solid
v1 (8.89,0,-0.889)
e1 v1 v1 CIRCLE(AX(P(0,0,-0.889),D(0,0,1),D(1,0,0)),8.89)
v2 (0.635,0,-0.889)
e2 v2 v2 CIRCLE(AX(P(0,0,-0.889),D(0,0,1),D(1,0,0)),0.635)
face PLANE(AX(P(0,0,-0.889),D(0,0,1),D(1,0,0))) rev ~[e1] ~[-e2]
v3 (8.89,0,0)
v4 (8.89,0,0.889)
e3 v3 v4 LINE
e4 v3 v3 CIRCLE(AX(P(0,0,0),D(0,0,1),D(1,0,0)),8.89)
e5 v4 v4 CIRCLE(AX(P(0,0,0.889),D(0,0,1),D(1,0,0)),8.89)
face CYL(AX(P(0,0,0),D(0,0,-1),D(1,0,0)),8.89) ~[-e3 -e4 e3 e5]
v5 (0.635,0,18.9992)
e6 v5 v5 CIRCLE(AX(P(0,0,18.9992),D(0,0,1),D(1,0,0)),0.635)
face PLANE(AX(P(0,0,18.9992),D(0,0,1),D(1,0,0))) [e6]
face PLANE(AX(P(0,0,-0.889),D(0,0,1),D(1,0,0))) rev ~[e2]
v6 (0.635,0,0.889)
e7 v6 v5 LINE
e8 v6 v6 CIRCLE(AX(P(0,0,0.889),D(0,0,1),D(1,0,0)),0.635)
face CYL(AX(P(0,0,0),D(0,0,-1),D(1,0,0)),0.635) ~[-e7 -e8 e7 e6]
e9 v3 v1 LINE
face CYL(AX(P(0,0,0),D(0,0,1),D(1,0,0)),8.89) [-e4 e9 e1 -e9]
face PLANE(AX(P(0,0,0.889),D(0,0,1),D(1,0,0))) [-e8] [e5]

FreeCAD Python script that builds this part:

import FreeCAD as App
import Part
import Sketcher
from FreeCAD import Vector
Q = App.Units.Quantity

doc = App.newDocument("Part")
body = doc.addObject("PartDesign::Body", "Body")

sketch1 = body.newObject("Sketcher::SketchObject", "Sketch")
sketch1.AttachmentSupport = (doc.getObject("XY_Plane"), [""])
sketch1.MapMode = "FlatFace"
sketch1.addGeometry(Part.Circle(Vector(0, 0, 0), Vector(0, 0, 1), 8.89), False)
sketch1.addGeometry(Part.Circle(Vector(0, 0, 0), Vector(0, 0, 1), 0.635), False)
sketch1.addConstraint(Sketcher.Constraint("Coincident", 0, 3, -1, 1))
sketch1.addConstraint(Sketcher.Constraint("Coincident", 1, 3, -1, 1))
sketch1.addConstraint(Sketcher.Constraint("Diameter", 0, Q("0.7 in")))
sketch1.addConstraint(Sketcher.Constraint("Diameter", 1, Q("0.05 in")))
pad1 = body.newObject("PartDesign::Pad", "Pad")
pad1.Profile = sketch1
pad1.Length = Q("0.07 in")
pad1.Midplane = True

sketch2 = body.newObject("Sketcher::SketchObject", "Sketch001")
sketch2.AttachmentSupport = (doc.getObject("XY_Plane"), [""])
sketch2.MapMode = "FlatFace"
sketch2.addGeometry(Part.Circle(Vector(0, 0, 0), Vector(0, 0, 1), 0.635), False)
sketch2.addConstraint(Sketcher.Constraint("Coincident", 0, 3, -1, 1))
sketch2.addConstraint(Sketcher.Constraint("Diameter", 0, Q("0.05 in")))
pad2 = body.newObject("PartDesign::Pad", "Pad001")
pad2.Profile = sketch2
pad2.Length = Q("0.748 in")

sketch3 = body.newObject("Sketcher::SketchObject", "Sketch002")
sketch3.AttachmentSupport = (doc.getObject("XY_Plane"), [""])
sketch3.MapMode = "FlatFace"
sketch3.AttachmentOffset = App.Placement(Vector(0, 0, -0.035 * 25.4), App.Rotation())
sketch3.addGeometry(Part.Circle(Vector(0, 0, 0), Vector(0, 0, 1), 0.635), False)
sketch3.addConstraint(Sketcher.Constraint("Coincident", 0, 3, -1, 1))
sketch3.addConstraint(Sketcher.Constraint("Diameter", 0, Q("0.05 in")))
pad3 = body.newObject("PartDesign::Pad", "Pad002")
pad3.Profile = sketch3
pad3.Length = Q("0.035 in")

doc.recompute()
